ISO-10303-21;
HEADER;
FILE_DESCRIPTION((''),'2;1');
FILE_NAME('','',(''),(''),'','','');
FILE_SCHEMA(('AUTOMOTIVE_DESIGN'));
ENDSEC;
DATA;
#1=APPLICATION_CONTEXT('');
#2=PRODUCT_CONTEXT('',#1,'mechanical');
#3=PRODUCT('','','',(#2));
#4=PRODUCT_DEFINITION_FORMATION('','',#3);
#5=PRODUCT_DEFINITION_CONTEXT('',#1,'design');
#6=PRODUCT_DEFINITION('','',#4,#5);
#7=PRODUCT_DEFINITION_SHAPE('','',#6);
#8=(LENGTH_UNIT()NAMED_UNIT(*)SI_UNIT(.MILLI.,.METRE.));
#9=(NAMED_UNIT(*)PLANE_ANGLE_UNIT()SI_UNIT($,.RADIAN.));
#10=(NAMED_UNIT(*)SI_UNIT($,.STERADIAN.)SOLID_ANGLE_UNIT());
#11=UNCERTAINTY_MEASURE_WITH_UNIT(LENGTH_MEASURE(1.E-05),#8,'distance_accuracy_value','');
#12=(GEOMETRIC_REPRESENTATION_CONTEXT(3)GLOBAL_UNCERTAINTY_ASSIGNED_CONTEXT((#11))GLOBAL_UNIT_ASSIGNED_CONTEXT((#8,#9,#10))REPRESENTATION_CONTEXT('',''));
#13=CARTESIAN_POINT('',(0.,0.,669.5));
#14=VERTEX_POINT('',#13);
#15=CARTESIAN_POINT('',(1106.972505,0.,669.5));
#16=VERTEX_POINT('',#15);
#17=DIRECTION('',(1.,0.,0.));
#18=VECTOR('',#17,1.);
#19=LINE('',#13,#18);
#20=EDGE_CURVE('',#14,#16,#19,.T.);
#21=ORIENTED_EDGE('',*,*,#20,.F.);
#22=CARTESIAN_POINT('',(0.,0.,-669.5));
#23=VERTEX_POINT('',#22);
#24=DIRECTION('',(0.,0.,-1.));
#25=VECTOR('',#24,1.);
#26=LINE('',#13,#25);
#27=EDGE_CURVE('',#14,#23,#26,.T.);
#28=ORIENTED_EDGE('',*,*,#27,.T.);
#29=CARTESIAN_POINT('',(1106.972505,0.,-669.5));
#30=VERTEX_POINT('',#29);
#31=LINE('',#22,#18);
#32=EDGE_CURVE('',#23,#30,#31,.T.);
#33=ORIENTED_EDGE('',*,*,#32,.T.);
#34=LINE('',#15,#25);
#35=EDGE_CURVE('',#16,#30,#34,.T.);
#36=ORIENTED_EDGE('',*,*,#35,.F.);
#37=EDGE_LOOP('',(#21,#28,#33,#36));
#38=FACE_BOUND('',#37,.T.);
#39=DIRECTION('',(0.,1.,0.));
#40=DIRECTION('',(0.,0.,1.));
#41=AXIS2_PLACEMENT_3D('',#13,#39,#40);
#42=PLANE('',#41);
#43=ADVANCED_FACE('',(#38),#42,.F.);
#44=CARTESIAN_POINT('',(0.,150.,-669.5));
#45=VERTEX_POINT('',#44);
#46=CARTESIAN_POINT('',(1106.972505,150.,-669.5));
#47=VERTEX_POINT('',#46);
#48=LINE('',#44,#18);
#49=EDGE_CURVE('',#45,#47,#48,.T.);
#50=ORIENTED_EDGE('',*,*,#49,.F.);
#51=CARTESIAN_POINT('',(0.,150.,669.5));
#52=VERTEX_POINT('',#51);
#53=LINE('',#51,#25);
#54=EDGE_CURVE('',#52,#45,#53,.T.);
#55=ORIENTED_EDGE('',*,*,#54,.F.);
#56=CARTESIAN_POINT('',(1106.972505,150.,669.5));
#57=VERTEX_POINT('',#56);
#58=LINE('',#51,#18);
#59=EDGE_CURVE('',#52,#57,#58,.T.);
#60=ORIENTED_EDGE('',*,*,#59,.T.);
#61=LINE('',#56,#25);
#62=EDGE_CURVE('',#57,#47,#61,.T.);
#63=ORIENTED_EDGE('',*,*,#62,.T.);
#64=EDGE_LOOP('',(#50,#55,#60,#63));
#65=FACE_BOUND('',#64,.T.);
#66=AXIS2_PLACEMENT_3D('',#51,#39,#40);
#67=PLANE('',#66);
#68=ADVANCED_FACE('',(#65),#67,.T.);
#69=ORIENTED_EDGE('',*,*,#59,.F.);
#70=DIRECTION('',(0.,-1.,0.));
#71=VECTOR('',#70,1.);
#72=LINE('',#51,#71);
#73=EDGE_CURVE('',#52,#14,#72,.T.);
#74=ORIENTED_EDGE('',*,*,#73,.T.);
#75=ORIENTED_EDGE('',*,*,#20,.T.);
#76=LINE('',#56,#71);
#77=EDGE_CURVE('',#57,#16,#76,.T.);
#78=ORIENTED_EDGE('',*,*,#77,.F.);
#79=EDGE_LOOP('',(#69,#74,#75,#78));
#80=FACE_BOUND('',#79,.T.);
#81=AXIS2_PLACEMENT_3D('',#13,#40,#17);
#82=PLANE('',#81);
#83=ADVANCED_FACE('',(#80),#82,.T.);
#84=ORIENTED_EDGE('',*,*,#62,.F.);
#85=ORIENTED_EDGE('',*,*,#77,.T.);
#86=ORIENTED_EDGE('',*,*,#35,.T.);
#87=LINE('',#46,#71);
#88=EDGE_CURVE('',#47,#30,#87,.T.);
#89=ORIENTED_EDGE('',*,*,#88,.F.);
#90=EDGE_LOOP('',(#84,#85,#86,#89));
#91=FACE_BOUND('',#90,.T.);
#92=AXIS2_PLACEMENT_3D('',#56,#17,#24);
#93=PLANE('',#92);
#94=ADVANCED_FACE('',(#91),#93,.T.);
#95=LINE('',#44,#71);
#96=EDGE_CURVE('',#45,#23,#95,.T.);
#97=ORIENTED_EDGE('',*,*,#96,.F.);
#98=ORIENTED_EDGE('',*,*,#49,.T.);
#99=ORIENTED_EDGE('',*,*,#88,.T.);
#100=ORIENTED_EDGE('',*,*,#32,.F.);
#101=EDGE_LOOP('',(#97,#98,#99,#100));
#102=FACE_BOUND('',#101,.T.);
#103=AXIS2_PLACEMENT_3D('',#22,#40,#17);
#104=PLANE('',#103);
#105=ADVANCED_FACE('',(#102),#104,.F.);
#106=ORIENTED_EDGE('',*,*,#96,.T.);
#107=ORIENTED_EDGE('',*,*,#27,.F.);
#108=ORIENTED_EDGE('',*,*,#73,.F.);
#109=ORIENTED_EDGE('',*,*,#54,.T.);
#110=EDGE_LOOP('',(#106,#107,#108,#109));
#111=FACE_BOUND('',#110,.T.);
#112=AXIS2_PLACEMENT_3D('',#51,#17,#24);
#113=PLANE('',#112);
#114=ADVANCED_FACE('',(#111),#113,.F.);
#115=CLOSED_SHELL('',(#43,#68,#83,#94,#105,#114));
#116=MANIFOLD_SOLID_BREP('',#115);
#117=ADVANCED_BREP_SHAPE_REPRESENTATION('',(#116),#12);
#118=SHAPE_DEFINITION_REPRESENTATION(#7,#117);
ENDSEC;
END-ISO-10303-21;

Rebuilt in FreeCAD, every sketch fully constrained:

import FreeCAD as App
import Part
import Sketcher
from FreeCAD import Vector
Q = App.Units.Quantity


def add_polygon(sketch, points):
    """Adds a closed chain of lines whose ends are joined by coincident constraints."""
    first, n = sketch.GeometryCount, len(points)
    for a, b in zip(points, points[1:] + points[:1]):
        sketch.addGeometry(Part.LineSegment(App.Vector(*a, 0), App.Vector(*b, 0)), False)
    for i in range(n):
        sketch.addConstraint(Sketcher.Constraint("Coincident", first + i, 2, first + (i + 1) % n, 1))

doc = App.newDocument("Part")
params = doc.addObject("Spreadsheet::Sheet", "Params")
for row, (alias, value) in enumerate([
    ("sketch1_height", "150 mm"),
    ("pad1_length", "1339 mm"),
], start=1):
    params.set(f"A{row}", alias)
    params.set(f"B{row}", "=" + value)
    params.setAlias(f"B{row}", alias)

body = doc.addObject("PartDesign::Body", "Body")

# Sketch on XY plane
sketch1 = doc.addObject("Sketcher::SketchObject", "Sketch")
body.addObject(sketch1)
sketch1.AttachmentSupport = (doc.XY_Plane, [""])
sketch1.MapMode = "FlatFace"
add_polygon(sketch1, [(0, 150), (0, 0), (1106.972505, 0), (1106.972505, 150)])  # lines 0-3
sketch1.addConstraint([
    Sketcher.Constraint("Vertical", 0),
    Sketcher.Constraint("Horizontal", 1),
    Sketcher.Constraint("Vertical", 2),
    Sketcher.Constraint("Horizontal", 3),
    Sketcher.Constraint("Coincident", 0, 2, -1, 1),
    Sketcher.Constraint("DistanceY", 0, 2, 0, 1, Q("150 mm")),
    Sketcher.Constraint("DistanceX", 1, 1, 1, 2, Q("1106.972505 mm")),
])
sketch1.setExpression("Constraints[9]", "Params.sketch1_height")
pad1 = doc.addObject("PartDesign::Pad", "Pad")
body.addObject(pad1)
pad1.Profile = sketch1
pad1.setExpression("Length", "Params.pad1_length")
pad1.Midplane = True

doc.recompute()
